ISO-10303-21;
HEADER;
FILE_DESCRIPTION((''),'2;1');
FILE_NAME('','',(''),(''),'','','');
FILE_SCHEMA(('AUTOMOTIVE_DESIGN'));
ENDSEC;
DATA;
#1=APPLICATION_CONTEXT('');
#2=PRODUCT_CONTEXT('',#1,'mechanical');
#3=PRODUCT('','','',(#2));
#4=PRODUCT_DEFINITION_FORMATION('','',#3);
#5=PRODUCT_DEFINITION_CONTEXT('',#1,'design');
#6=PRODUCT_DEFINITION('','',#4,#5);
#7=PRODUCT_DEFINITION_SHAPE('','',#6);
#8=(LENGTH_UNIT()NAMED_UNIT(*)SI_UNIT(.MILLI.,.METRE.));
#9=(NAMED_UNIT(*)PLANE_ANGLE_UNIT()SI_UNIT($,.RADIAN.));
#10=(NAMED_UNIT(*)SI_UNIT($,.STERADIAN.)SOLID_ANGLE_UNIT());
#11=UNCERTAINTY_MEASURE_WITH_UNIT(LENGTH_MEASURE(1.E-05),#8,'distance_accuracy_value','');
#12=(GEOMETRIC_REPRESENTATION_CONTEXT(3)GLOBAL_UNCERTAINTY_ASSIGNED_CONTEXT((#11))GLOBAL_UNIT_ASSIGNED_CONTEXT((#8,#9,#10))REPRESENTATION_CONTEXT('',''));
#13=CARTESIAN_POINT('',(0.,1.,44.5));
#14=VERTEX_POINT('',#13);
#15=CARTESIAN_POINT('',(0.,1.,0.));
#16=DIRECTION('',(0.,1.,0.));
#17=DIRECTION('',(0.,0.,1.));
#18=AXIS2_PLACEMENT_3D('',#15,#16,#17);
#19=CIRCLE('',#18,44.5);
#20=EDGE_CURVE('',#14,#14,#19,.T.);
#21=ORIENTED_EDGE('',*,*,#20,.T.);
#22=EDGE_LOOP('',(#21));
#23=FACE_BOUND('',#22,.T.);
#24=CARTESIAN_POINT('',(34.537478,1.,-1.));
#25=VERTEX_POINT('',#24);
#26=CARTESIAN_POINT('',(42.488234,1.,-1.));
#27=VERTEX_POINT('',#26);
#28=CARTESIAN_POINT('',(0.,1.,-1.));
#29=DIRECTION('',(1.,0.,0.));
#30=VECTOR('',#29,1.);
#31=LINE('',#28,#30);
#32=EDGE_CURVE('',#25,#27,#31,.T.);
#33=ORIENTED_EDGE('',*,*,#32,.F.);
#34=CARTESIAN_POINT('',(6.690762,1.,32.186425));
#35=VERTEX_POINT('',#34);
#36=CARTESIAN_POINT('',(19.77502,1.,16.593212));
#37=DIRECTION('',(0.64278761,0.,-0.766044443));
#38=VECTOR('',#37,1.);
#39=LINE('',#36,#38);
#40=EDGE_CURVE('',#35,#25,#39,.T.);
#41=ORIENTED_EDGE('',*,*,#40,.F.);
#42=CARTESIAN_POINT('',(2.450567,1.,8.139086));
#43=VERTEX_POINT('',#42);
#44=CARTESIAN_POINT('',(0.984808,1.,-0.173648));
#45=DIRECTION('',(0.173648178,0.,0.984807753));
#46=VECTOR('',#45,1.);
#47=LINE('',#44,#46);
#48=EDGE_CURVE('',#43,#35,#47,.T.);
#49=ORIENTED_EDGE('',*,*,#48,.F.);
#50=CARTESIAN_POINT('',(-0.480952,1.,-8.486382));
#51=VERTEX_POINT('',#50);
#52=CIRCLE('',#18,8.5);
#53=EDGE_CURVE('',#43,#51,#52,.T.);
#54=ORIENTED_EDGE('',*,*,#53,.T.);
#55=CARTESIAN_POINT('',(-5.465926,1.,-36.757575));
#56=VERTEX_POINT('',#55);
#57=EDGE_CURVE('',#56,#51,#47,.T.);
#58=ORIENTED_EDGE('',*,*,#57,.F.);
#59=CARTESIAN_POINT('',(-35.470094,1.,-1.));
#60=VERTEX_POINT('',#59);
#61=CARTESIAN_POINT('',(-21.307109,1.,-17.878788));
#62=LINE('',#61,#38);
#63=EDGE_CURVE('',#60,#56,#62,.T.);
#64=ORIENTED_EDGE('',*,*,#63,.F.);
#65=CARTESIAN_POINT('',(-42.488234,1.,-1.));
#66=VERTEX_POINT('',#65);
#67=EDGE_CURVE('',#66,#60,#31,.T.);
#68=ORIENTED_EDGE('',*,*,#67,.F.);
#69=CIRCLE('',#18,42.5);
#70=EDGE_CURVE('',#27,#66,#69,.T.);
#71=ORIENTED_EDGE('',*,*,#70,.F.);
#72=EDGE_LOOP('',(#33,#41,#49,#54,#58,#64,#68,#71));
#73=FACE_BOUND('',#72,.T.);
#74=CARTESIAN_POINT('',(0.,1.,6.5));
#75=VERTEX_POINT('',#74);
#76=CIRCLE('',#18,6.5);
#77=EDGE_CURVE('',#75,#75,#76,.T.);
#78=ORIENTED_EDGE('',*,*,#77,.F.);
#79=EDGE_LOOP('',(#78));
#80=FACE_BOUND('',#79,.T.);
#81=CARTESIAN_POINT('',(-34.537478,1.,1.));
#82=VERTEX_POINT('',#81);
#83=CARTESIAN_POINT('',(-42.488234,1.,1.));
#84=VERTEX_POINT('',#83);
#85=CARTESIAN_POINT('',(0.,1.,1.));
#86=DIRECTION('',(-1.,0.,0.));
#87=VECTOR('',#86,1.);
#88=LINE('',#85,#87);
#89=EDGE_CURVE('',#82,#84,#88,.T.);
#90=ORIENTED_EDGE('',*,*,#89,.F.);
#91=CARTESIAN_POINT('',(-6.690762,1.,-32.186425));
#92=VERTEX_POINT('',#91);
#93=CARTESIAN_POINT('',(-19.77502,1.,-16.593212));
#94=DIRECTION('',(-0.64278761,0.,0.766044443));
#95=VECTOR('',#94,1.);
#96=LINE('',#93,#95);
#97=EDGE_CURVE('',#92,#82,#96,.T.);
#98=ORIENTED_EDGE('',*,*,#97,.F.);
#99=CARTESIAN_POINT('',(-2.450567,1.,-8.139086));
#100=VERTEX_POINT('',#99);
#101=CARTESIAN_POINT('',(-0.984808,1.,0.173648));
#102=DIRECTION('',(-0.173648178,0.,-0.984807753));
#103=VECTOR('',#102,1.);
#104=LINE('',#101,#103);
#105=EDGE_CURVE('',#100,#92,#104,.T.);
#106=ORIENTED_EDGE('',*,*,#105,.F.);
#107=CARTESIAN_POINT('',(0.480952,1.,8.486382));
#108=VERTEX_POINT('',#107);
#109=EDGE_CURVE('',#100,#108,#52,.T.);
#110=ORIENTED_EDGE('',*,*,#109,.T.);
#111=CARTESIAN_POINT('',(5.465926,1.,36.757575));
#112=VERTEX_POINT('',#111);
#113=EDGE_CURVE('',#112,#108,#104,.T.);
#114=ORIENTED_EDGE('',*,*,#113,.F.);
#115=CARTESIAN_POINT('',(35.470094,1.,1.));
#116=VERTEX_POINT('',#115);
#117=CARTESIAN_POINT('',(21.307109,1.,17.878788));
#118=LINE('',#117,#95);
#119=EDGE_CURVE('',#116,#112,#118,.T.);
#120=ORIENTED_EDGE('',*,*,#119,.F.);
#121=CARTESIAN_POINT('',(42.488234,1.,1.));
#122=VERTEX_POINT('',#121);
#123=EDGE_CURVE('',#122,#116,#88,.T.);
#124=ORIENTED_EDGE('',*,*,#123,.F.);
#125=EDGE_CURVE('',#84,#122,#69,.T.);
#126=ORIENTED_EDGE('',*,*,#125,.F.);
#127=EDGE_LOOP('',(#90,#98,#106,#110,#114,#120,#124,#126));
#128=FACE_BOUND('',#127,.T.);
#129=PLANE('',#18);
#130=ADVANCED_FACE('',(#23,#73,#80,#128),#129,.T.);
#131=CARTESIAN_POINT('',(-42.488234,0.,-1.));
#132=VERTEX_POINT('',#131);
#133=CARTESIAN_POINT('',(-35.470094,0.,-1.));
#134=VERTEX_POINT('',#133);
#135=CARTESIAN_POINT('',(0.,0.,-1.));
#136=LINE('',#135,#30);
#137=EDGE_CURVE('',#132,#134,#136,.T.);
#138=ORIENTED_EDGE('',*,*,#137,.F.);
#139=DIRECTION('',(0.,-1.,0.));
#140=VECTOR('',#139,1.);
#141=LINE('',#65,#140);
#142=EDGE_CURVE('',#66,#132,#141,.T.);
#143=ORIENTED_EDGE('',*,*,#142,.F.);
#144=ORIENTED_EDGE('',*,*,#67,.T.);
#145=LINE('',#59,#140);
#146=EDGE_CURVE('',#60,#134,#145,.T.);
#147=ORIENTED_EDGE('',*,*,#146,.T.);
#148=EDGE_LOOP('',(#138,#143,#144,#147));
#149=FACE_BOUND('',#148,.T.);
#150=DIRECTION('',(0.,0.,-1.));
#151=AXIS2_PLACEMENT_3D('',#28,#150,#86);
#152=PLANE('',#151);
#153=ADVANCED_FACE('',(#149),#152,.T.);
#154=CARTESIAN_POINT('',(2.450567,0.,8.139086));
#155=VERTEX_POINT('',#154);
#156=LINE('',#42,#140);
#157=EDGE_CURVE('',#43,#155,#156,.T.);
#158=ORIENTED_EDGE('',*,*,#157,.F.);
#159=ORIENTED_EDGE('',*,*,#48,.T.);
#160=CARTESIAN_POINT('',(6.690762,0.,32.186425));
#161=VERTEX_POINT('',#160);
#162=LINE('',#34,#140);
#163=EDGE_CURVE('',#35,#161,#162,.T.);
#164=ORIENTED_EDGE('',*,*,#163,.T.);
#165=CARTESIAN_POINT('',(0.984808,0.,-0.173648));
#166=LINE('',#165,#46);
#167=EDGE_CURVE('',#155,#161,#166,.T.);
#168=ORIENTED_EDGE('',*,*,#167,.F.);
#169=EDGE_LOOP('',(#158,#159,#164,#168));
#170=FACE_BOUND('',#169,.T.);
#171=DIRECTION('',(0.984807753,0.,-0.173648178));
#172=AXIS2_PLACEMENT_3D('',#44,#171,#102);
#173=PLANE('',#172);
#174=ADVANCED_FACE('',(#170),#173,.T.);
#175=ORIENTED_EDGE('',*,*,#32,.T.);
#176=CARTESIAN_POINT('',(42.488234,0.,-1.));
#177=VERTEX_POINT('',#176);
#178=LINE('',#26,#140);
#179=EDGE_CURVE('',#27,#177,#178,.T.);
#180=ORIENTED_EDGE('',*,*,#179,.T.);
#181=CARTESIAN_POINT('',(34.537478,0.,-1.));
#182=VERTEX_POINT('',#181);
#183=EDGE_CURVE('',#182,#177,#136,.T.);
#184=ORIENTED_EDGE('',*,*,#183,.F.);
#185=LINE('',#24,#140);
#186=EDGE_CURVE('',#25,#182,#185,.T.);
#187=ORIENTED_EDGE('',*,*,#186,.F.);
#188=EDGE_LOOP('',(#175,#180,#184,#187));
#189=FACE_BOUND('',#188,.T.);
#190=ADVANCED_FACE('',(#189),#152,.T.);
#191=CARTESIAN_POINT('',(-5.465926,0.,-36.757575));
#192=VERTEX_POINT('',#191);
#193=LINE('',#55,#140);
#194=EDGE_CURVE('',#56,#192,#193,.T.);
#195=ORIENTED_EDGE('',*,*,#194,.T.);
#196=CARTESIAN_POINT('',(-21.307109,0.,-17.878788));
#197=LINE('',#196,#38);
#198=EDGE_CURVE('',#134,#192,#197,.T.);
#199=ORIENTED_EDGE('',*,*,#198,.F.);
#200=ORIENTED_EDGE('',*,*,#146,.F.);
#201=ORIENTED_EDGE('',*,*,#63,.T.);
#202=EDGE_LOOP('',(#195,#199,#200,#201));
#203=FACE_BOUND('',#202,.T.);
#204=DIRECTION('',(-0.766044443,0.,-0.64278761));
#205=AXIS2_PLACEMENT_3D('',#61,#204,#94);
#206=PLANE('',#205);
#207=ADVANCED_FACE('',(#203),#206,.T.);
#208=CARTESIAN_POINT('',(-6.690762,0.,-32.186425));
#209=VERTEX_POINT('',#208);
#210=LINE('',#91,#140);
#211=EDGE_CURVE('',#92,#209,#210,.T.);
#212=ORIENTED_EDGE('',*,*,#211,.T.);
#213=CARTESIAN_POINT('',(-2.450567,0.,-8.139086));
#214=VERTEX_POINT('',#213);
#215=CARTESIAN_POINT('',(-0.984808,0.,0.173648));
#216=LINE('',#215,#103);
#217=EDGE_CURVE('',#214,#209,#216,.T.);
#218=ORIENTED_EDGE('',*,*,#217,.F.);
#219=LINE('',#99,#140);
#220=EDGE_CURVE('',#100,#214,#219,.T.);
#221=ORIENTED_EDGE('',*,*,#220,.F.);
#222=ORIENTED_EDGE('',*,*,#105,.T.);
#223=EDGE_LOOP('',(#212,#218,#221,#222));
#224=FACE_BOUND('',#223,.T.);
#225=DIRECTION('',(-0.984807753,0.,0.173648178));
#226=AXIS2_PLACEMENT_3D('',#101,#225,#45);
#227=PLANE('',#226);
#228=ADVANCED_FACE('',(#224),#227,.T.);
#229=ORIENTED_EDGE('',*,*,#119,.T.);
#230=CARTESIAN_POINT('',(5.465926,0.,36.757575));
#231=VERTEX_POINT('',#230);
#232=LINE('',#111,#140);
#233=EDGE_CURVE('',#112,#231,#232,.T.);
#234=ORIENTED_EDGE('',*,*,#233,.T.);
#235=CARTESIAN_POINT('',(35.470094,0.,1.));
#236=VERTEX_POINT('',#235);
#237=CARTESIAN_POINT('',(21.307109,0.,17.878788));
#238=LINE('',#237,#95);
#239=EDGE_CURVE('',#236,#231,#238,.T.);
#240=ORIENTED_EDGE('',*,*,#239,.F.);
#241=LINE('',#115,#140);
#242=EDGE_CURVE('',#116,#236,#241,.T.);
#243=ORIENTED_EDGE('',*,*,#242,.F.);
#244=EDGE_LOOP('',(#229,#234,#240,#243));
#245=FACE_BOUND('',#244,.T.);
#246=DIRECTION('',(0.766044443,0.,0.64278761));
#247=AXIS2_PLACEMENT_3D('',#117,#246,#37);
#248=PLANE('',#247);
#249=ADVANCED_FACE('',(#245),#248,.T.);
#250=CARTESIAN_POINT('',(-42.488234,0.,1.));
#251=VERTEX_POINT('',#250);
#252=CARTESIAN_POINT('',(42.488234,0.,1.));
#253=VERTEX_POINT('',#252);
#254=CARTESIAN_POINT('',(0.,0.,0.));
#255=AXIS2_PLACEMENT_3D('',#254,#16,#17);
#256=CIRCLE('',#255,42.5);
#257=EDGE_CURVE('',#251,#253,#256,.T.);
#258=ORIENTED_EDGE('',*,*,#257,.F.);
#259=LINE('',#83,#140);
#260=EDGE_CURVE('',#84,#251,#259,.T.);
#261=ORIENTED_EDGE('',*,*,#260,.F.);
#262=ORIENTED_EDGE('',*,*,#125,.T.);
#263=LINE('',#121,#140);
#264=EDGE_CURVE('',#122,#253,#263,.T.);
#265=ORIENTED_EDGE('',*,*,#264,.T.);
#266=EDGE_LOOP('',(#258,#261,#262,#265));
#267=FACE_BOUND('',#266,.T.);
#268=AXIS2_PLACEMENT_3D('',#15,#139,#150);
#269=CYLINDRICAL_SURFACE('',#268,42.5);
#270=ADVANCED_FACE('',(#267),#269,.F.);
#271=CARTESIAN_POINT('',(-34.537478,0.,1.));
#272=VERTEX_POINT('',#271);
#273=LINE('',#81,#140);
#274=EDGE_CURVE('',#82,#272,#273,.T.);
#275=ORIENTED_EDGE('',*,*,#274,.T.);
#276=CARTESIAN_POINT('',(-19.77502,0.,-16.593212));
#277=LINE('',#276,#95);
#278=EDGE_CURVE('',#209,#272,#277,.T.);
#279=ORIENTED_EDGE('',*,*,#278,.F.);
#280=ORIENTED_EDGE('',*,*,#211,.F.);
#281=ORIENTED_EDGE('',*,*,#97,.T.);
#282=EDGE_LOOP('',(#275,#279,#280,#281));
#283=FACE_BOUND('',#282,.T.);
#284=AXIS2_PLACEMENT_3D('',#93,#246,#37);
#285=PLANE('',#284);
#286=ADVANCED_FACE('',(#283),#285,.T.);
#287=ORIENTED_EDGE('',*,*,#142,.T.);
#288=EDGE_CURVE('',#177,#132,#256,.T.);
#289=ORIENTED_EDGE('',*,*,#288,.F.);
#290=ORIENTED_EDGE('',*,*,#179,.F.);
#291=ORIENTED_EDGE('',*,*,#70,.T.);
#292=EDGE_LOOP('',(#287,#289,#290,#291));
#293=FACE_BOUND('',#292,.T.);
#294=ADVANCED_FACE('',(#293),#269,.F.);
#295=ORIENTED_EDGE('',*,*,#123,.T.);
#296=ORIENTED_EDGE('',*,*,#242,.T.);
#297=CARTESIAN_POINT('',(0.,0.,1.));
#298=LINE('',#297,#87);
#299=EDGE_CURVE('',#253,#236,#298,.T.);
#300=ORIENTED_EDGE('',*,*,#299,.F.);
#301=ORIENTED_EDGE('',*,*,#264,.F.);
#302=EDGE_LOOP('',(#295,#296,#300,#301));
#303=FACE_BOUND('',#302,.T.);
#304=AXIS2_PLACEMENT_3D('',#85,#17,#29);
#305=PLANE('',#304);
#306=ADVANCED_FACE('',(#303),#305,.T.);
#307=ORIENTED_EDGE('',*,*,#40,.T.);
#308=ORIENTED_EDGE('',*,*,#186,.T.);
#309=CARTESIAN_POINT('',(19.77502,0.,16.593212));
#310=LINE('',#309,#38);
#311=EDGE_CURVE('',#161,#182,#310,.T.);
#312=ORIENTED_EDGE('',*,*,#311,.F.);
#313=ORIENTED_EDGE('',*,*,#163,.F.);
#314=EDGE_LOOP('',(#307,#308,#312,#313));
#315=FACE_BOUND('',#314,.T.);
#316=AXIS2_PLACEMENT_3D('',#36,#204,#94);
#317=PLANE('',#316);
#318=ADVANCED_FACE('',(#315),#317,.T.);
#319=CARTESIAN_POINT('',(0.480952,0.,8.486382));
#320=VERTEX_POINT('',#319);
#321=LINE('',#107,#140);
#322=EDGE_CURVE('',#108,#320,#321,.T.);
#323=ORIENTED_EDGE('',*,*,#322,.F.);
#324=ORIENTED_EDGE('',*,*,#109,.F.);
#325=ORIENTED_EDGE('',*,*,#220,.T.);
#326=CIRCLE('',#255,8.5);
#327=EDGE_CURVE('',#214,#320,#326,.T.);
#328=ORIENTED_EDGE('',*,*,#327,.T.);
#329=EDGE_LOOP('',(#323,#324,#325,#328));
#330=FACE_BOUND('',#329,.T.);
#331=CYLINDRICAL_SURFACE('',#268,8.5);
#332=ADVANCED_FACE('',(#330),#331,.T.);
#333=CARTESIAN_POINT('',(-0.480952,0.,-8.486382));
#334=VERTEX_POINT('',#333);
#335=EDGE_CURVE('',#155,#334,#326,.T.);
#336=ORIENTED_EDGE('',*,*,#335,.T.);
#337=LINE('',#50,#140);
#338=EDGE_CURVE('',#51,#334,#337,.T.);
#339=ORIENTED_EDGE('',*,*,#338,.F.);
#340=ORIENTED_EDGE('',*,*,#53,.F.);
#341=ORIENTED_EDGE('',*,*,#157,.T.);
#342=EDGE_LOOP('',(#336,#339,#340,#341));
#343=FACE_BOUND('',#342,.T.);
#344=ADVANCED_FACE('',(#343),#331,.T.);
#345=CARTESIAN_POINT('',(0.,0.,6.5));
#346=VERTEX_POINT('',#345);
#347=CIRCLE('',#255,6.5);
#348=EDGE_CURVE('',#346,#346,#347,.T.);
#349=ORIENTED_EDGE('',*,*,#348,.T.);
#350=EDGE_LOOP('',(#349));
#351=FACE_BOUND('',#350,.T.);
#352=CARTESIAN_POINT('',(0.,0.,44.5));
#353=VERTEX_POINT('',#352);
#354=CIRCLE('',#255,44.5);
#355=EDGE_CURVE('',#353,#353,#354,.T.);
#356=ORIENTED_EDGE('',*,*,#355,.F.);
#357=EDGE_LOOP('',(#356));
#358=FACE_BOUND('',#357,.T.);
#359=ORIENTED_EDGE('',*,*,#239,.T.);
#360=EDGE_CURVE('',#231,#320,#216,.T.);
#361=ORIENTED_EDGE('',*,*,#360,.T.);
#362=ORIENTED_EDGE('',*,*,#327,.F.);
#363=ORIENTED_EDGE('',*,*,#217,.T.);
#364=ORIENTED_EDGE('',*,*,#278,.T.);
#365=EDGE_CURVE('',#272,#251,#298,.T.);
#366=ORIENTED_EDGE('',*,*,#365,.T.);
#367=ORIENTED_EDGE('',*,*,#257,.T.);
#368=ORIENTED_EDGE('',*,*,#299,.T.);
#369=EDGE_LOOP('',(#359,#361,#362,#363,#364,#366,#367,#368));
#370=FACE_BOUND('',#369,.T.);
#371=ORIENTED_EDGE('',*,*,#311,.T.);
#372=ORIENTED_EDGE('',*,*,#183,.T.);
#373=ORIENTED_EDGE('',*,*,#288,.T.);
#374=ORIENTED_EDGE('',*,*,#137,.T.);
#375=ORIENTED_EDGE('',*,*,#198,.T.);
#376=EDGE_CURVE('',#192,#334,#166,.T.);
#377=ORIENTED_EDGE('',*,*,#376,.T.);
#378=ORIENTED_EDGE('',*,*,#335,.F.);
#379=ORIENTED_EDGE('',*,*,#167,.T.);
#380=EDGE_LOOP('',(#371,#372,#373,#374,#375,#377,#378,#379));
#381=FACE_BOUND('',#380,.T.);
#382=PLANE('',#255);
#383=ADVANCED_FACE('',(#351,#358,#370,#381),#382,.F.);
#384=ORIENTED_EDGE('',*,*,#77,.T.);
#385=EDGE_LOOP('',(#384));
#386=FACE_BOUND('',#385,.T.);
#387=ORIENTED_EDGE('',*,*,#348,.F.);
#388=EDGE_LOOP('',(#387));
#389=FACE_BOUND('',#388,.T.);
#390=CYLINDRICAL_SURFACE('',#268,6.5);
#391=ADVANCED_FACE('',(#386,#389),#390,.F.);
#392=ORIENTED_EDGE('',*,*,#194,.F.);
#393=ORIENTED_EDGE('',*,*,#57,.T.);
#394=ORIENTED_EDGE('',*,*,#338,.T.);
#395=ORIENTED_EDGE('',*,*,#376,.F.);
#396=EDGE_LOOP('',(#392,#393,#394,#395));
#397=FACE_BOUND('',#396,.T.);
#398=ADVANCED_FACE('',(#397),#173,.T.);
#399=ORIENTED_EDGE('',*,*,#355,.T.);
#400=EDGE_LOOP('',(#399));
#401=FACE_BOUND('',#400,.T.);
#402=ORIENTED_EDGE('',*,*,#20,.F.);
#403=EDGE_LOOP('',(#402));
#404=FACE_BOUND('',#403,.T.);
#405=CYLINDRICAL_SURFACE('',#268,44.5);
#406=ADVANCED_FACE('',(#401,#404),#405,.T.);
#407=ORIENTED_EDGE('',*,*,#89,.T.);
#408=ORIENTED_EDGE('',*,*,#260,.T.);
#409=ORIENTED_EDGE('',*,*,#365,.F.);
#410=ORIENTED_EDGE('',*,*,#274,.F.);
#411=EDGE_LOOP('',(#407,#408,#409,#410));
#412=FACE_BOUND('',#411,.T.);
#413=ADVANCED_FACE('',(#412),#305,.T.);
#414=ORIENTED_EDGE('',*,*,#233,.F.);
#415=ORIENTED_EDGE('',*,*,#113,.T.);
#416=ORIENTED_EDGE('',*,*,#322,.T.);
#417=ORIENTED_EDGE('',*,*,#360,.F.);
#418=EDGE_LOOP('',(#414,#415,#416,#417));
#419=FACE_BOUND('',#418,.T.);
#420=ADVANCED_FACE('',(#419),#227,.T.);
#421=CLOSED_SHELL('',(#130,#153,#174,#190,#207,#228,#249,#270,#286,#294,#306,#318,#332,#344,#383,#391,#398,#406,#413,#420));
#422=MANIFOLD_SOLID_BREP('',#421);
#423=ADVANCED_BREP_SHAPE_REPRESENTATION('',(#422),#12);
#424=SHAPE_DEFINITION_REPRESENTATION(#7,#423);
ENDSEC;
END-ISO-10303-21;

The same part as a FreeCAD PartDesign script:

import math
import FreeCAD as App
import Part
import Sketcher
Q = App.Units.Quantity

doc = App.newDocument("Part")
body = doc.addObject("PartDesign::Body", "Body")

# Sketch on XZ plane
sketch1 = body.newObject("Sketcher::SketchObject", "Sketch")
sketch1.AttachmentSupport = (doc.getObject("XZ_Plane"), [""])
sketch1.MapMode = "FlatFace"
sketch1.addGeometry([
    Part.Circle(App.Vector(0, 0, 0), App.Vector(0, 0, 1), 44.5),  # 0
    Part.ArcOfCircle(Part.Circle(App.Vector(0, 0, 0), App.Vector(0, 0, 1), 42.5), math.radians(-179), math.radians(-1)),  # 1
    Part.LineSegment(App.Vector(42.5, -1, 0), App.Vector(34.5, -1, 0)),  # 2
    Part.LineSegment(App.Vector(34.5, -1, 0), App.Vector(6.7, 32.2, 0)),  # 3
    Part.LineSegment(App.Vector(6.7, 32.2, 0), App.Vector(2.5, 8.1, 0)),  # 4
    Part.ArcOfCircle(Part.Circle(App.Vector(0, 0, 0), App.Vector(0, 0, 1), 8.5), math.radians(0), math.radians(73)),  # 5
    Part.ArcOfCircle(Part.Circle(App.Vector(0, 0, 0), App.Vector(0, 0, 1), 8.5), math.radians(-93), math.radians(0)),  # 6
    Part.LineSegment(App.Vector(-0.5, -8.5, 0), App.Vector(-5.5, -36.8, 0)),  # 7
    Part.LineSegment(App.Vector(-5.5, -36.8, 0), App.Vector(-35.5, -1, 0)),  # 8
    Part.LineSegment(App.Vector(-35.5, -1, 0), App.Vector(-42.5, -1, 0)),  # 9
    Part.ArcOfCircle(Part.Circle(App.Vector(0, 0, 0), App.Vector(0, 0, 1), 42.5), math.radians(1), math.radians(179)),  # 10
    Part.LineSegment(App.Vector(-42.5, 1, 0), App.Vector(-34.5, 1, 0)),  # 11
    Part.LineSegment(App.Vector(-34.5, 1, 0), App.Vector(-6.7, -32.2, 0)),  # 12
    Part.LineSegment(App.Vector(-6.7, -32.2, 0), App.Vector(-2.5, -8.1, 0)),  # 13
    Part.ArcOfCircle(Part.Circle(App.Vector(0, 0, 0), App.Vector(0, 0, 1), 8.5), math.radians(87), math.radians(253)),  # 14
    Part.LineSegment(App.Vector(0.5, 8.5, 0), App.Vector(5.5, 36.8, 0)),  # 15
    Part.LineSegment(App.Vector(5.5, 36.8, 0), App.Vector(35.5, 1, 0)),  # 16
    Part.LineSegment(App.Vector(35.5, 1, 0), App.Vector(42.5, 1, 0)),  # 17
    Part.ArcOfCircle(Part.Circle(App.Vector(0, 0, 0), App.Vector(0, 0, 1), 6.5), math.radians(71.15), math.radians(88.85)),  # 18
    Part.ArcOfCircle(Part.Circle(App.Vector(0, 0, 0), App.Vector(0, 0, 1), 6.5), math.radians(89), math.radians(251)),  # 19
    Part.ArcOfCircle(Part.Circle(App.Vector(0, 0, 0), App.Vector(0, 0, 1), 6.5), math.radians(-108.85), math.radians(-91.15)),  # 20
    Part.ArcOfCircle(Part.Circle(App.Vector(0, 0, 0), App.Vector(0, 0, 1), 6.5), math.radians(-91), math.radians(0)),  # 21
    Part.ArcOfCircle(Part.Circle(App.Vector(0, 0, 0), App.Vector(0, 0, 1), 6.5), math.radians(0), math.radians(71)),  # 22
], False)
sketch1.addConstraint([
    Sketcher.Constraint("Coincident", 1, 2, 2, 1),
    Sketcher.Constraint("Coincident", 2, 2, 3, 1),
    Sketcher.Constraint("Coincident", 3, 2, 4, 1),
    Sketcher.Constraint("Coincident", 4, 2, 5, 2),
    Sketcher.Constraint("Tangent", 5, 1, 6, 2),
    Sketcher.Constraint("Coincident", 6, 1, 7, 1),
    Sketcher.Constraint("Coincident", 7, 2, 8, 1),
    Sketcher.Constraint("Coincident", 8, 2, 9, 1),
    Sketcher.Constraint("Coincident", 9, 2, 1, 1),
    Sketcher.Constraint("Coincident", 10, 2, 11, 1),
    Sketcher.Constraint("Coincident", 11, 2, 12, 1),
    Sketcher.Constraint("Coincident", 12, 2, 13, 1),
    Sketcher.Constraint("Coincident", 13, 2, 14, 2),
    Sketcher.Constraint("Coincident", 14, 1, 15, 1),
    Sketcher.Constraint("Coincident", 15, 2, 16, 1),
    Sketcher.Constraint("Coincident", 16, 2, 17, 1),
    Sketcher.Constraint("Coincident", 17, 2, 10, 1),
    Sketcher.Constraint("Tangent", 18, 2, 19, 1),
    Sketcher.Constraint("Tangent", 19, 2, 20, 1),
    Sketcher.Constraint("Tangent", 20, 2, 21, 1),
    Sketcher.Constraint("Tangent", 21, 2, 22, 1),
    Sketcher.Constraint("Tangent", 22, 2, 18, 1),
    Sketcher.Constraint("Horizontal", 2),
    Sketcher.Constraint("Horizontal", 9),
    Sketcher.Constraint("Horizontal", 11),
    Sketcher.Constraint("Horizontal", 17),
    Sketcher.Constraint("Coincident", 0, 3, -1, 1),
    Sketcher.Constraint("Coincident", 1, 3, -1, 1),
    Sketcher.Constraint("Coincident", 5, 3, -1, 1),
    Sketcher.Constraint("Coincident", 10, 3, -1, 1),
    Sketcher.Constraint("Coincident", 14, 3, -1, 1),
    Sketcher.Constraint("Coincident", 18, 3, -1, 1),
    Sketcher.Constraint("Coincident", 20, 3, -1, 1),
    Sketcher.Constraint("Equal", 5, 6),
    Sketcher.Constraint("Equal", 1, 10),
    Sketcher.Constraint("Equal", 6, 14),
    Sketcher.Constraint("Symmetric", 2, 2, 11, 2, -1, 1),
    Sketcher.Constraint("Symmetric", 3, 2, 12, 2, -1, 1),
    Sketcher.Constraint("Symmetric", 7, 2, 15, 2, -1, 1),
    Sketcher.Constraint("Symmetric", 8, 2, 16, 2, -1, 1),
    Sketcher.Constraint("PointOnObject", 5, 1, -1),
    Sketcher.Constraint("PointOnObject", 21, 2, -1),
    Sketcher.Constraint("Parallel", 4, 7),
    Sketcher.Constraint("Parallel", 3, 8),
    Sketcher.Constraint("Parallel", 7, 13),
    Sketcher.Constraint("Parallel", 13, 15),
    Sketcher.Constraint("Horizontal", 2, 2, 8, 2),
    Sketcher.Constraint("Diameter", 0, Q("89 mm")),
    Sketcher.Constraint("Radius", 1, Q("42.5 mm")),
    Sketcher.Constraint("Radius", 5, Q("8.5 mm")),
    Sketcher.Constraint("Radius", 18, Q("6.5 mm")),
    Sketcher.Constraint("Angle", 3, Q("130 deg")),
    Sketcher.Constraint("Angle", 4, Q("-100 deg")),
    Sketcher.Constraint("DistanceY", 1, 2, -1, 1, Q("1 mm")),
    Sketcher.Constraint("Distance", 3, Q("43.321801 mm")),
    Sketcher.Constraint("Distance", 8, Q("46.678199 mm")),
    Sketcher.Constraint("DistanceX", 9, 2, 9, 1, Q("7.01814 mm")),
    Sketcher.Constraint("DistanceX", 18, 2, 4, 2, Q("2.320099 mm")),
    Sketcher.Constraint("DistanceX", 13, 2, 20, 2, Q("2.320099 mm")),
    Sketcher.Constraint("DistanceX", 2, 2, 2, 1, Q("7.950755 mm")),
    Sketcher.Constraint("DistanceY", 13, 2, 19, 2, Q("1.987692 mm")),
    Sketcher.Constraint("DistanceY", 22, 2, 4, 2, Q("1.987692 mm")),
])
pad1 = body.newObject("PartDesign::Pad", "Pad")
pad1.Profile = sketch1
pad1.Length = 1
pad1.Reversed = True

doc.recompute()
